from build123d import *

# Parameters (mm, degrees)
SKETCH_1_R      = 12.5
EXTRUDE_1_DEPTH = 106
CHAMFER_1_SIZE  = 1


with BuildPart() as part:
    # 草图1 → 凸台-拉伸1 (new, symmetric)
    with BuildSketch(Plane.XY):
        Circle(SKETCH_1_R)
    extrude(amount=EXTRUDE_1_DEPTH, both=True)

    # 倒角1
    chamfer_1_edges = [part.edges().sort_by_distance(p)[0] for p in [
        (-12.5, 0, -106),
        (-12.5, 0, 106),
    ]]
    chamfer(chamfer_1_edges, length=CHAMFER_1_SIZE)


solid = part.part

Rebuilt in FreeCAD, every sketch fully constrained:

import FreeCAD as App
import Part
import Sketcher
from FreeCAD import Vector


def edges_at(feature, points):
    """Names of the edges that pass closest to the given points."""
    edges = feature.Shape.Edges
    near = lambda p: min(range(len(edges)), key=lambda i: edges[i].distToShape(Part.Vertex(*p))[0])
    return sorted({f"Edge{near(p) + 1}" for p in points})

doc = App.newDocument("Part")
body = doc.addObject("PartDesign::Body", "Body")

# Sketch on XY plane
sketch1 = doc.addObject("Sketcher::SketchObject", "Sketch")
body.addObject(sketch1)
sketch1.AttachmentSupport = (doc.XY_Plane, [""])
sketch1.MapMode = "FlatFace"
sketch1.addGeometry(Part.Circle(Vector(0, 0, 0), Vector(0, 0, 1), 12), False)
sketch1.addConstraint(Sketcher.Constraint("Coincident", 0, 3, -1, 1))
sketch1.addConstraint(Sketcher.Constraint("Diameter", 0, 25.0))
pad1 = doc.addObject("PartDesign::Pad", "Pad")
body.addObject(pad1)
pad1.Profile = sketch1
pad1.Length = 212
pad1.Midplane = True
doc.recompute()

chamfer = doc.addObject("PartDesign::Chamfer", "Chamfer")
body.addObject(chamfer)
chamfer.Base = (pad1, edges_at(pad1, [(-12.5, 0, -106), (-12.5, 0, 106)]))
chamfer.Size = 1

doc.recompute()
